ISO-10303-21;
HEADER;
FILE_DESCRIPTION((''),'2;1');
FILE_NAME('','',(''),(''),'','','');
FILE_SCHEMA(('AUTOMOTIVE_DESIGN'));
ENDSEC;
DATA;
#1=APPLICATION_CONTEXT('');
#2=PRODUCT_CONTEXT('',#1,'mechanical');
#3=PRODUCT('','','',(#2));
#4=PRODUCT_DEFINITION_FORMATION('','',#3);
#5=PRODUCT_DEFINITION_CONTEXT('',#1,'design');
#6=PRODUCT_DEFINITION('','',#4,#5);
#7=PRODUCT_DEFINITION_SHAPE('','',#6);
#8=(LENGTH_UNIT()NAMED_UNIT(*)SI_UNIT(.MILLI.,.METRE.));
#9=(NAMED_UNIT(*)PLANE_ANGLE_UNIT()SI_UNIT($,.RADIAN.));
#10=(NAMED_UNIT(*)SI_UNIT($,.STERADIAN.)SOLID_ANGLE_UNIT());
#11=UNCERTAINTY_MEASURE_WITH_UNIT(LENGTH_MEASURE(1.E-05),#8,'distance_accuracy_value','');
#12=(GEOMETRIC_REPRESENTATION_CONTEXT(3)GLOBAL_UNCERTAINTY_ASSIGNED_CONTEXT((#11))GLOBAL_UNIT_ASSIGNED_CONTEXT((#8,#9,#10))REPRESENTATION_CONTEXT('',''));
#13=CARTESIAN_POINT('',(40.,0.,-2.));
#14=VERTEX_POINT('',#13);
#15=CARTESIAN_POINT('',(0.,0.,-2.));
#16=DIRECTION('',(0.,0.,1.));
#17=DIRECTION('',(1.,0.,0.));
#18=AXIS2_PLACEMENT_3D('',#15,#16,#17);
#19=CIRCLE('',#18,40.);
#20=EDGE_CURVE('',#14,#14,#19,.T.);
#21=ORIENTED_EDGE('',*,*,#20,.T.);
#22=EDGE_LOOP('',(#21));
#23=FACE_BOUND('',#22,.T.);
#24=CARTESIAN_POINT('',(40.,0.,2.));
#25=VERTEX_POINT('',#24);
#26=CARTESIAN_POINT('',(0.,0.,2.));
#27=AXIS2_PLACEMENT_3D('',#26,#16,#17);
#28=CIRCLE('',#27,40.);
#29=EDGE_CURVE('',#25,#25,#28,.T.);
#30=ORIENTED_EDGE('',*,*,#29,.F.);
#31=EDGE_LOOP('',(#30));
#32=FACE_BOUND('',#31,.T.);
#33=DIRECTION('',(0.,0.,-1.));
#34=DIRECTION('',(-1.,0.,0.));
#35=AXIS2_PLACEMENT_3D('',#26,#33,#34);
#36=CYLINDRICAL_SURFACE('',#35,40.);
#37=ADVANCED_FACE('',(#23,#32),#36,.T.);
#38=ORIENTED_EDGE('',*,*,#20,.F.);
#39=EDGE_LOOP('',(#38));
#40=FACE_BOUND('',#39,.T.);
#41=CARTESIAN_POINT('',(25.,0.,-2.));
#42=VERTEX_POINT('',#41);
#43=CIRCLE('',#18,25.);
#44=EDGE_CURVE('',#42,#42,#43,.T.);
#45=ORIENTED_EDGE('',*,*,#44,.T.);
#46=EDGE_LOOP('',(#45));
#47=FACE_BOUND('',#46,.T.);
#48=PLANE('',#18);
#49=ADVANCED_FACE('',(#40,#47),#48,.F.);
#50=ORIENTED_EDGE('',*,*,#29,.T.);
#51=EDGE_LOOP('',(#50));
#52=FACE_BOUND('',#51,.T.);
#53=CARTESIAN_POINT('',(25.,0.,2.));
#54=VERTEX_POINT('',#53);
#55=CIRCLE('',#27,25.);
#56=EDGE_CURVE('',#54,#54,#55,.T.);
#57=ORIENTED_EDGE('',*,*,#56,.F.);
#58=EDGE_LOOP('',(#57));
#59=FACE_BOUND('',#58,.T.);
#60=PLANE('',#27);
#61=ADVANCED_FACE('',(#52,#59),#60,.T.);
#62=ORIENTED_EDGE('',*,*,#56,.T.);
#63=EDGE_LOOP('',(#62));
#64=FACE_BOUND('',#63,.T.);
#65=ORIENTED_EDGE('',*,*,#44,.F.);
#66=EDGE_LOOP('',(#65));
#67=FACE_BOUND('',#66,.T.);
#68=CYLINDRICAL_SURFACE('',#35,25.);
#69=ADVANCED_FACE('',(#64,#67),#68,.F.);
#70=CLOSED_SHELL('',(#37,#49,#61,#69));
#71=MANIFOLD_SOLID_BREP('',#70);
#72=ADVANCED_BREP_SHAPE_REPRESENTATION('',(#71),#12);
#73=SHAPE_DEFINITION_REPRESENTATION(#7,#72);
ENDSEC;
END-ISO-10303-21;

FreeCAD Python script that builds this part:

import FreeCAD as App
import Part
import Sketcher
Q = App.Units.Quantity

doc = App.newDocument("Part")
params = doc.addObject("Spreadsheet::Sheet", "Params")
for row, (alias, value) in enumerate([
    ("sketch1_diameter", "80 mm"),
    ("sketch1_diameter2", "50 mm"),
    ("pad1_length", "4 mm"),
], start=1):
    params.set(f"A{row}", alias)
    params.set(f"B{row}", "=" + value)
    params.setAlias(f"B{row}", alias)

body = doc.addObject("PartDesign::Body", "Body")

# Sketch on XY plane
sketch1 = doc.addObject("Sketcher::SketchObject", "Sketch")
body.addObject(sketch1)
sketch1.AttachmentSupport = (doc.XY_Plane, [""])
sketch1.MapMode = "FlatFace"
sketch1.addGeometry([
    Part.Circle(App.Vector(0, 0, 0), App.Vector(0, 0, 1), 40),
    Part.Circle(App.Vector(0, 0, 0), App.Vector(0, 0, 1), 25),
], False)
sketch1.addConstraint([
    Sketcher.Constraint("Coincident", 0, 3, -1, 1),
    Sketcher.Constraint("Coincident", 1, 3, -1, 1),
    Sketcher.Constraint("Diameter", 0, Q("80 mm")),
    Sketcher.Constraint("Diameter", 1, Q("50 mm")),
])
sketch1.setExpression("Constraints[2]", "Params.sketch1_diameter")
sketch1.setExpression("Constraints[3]", "Params.sketch1_diameter2")
pad1 = doc.addObject("PartDesign::Pad", "Pad")
body.addObject(pad1)
pad1.Profile = sketch1
pad1.setExpression("Length", "Params.pad1_length")
pad1.Midplane = True

doc.recompute()
